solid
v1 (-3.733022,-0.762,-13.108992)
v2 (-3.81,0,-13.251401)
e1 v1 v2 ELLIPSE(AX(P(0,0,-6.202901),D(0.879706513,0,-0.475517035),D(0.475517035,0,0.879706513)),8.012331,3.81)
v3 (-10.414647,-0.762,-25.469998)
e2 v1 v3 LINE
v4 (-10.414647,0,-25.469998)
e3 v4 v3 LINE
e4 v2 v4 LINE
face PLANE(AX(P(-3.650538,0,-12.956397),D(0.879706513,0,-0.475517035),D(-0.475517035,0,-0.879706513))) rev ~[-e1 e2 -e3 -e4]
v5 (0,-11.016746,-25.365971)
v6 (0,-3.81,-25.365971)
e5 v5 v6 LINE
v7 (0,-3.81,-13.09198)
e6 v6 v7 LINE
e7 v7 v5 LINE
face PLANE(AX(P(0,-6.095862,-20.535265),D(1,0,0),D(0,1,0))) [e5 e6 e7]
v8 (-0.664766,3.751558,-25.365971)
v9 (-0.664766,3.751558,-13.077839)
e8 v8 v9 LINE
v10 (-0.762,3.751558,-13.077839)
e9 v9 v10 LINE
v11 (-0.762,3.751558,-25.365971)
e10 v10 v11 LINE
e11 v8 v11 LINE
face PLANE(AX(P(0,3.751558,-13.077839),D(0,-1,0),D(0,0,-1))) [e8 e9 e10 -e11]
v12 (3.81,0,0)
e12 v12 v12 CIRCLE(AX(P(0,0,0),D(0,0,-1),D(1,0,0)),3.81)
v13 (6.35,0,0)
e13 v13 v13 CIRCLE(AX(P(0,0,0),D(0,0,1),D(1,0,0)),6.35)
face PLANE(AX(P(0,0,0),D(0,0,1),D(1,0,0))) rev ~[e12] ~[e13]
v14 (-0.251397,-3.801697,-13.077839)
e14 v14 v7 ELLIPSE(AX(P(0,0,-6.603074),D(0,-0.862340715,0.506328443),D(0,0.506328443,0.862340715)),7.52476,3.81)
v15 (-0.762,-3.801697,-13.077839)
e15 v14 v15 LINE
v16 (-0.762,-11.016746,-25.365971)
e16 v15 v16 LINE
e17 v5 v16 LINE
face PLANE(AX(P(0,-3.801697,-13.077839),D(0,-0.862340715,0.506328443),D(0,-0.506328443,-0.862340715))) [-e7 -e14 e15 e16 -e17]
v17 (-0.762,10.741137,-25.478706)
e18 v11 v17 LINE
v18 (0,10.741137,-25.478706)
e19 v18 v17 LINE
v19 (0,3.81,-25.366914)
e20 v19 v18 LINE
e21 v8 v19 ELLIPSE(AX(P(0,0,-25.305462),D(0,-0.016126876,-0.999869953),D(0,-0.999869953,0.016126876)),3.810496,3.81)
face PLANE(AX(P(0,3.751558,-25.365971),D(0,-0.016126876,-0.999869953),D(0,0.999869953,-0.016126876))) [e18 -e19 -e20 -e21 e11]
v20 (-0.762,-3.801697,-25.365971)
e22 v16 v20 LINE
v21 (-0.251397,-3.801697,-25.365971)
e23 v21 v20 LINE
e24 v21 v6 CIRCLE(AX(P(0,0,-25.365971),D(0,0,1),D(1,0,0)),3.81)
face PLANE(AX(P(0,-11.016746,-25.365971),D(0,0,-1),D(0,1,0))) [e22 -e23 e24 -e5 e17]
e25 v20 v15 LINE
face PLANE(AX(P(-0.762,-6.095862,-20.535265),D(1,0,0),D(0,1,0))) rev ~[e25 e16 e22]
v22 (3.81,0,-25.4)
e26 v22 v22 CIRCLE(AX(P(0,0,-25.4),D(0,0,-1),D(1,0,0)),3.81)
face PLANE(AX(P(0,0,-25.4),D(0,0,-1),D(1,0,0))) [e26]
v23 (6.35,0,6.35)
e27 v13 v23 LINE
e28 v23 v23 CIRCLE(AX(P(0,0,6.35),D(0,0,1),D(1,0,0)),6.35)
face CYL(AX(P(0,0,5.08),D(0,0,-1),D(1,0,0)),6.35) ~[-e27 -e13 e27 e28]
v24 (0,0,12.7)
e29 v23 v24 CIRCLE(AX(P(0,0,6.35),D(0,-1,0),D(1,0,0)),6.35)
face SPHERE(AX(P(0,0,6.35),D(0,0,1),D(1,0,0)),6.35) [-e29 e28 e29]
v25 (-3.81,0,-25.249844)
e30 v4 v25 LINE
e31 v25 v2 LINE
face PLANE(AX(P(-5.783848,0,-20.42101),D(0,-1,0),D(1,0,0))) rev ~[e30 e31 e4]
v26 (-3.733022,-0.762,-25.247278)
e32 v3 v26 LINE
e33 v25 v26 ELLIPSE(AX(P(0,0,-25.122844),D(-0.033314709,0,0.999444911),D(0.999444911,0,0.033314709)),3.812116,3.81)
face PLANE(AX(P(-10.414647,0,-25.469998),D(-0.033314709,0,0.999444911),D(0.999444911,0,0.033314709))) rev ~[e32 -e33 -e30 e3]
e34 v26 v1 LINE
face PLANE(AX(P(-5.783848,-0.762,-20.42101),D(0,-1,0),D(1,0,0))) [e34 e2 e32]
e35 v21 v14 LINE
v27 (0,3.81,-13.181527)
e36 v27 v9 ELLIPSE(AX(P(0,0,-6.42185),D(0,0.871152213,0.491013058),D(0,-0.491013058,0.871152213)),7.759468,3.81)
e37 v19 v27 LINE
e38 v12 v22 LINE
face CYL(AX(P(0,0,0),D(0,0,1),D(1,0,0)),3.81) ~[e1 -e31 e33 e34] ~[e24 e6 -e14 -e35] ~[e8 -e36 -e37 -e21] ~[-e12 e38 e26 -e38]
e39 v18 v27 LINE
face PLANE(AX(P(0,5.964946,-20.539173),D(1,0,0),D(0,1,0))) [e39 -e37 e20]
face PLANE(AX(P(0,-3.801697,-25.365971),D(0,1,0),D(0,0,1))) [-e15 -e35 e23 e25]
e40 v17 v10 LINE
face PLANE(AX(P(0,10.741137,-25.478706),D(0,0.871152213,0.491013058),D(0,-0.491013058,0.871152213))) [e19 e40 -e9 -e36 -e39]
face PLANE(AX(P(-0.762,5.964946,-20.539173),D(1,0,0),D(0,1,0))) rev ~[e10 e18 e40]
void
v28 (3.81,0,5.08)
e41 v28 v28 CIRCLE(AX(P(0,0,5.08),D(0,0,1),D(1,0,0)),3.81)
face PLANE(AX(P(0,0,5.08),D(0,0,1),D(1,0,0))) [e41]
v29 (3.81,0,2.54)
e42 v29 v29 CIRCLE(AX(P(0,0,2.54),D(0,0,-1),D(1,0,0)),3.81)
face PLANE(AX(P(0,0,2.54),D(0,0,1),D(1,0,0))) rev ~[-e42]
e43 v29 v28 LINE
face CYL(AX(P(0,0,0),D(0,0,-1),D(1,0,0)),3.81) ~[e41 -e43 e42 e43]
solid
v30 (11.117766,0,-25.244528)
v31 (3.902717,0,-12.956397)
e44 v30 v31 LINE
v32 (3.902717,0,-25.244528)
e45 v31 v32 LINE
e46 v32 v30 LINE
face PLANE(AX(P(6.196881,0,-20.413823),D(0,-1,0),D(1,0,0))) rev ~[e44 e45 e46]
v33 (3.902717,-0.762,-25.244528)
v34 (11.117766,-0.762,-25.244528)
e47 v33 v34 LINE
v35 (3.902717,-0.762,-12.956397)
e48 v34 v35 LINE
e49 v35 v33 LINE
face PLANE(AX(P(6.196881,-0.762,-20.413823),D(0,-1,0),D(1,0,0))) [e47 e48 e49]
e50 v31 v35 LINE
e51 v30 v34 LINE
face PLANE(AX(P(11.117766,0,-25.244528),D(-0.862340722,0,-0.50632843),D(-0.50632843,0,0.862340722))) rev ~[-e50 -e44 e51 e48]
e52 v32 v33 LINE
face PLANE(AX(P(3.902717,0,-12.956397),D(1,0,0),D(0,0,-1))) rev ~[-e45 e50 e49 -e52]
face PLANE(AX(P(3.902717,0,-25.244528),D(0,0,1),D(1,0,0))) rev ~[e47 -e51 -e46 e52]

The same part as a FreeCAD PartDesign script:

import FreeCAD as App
import Part
import Sketcher
Q = App.Units.Quantity


def edges_at(feature, points):
    """Names of the edges that pass closest to the given points."""
    edges = feature.Shape.Edges
    near = lambda p: min(range(len(edges)), key=lambda i: edges[i].distToShape(Part.Vertex(*p))[0])
    return sorted({f"Edge{near(p) + 1}" for p in points})


def faces_at(feature, points):
    """Names of the faces that lie closest to the given points."""
    faces = feature.Shape.Faces
    near = lambda p: min(range(len(faces)), key=lambda i: faces[i].distToShape(Part.Vertex(*p))[0])
    return sorted({f"Face{near(p) + 1}" for p in points})

doc = App.newDocument("Part")
body = doc.addObject("PartDesign::Body", "Body")

# Sketch on XY plane
sketch1 = body.newObject("Sketcher::SketchObject", "Sketch")
sketch1.AttachmentSupport = (doc.getObject("XY_Plane"), [""])
sketch1.MapMode = "FlatFace"
sketch1.addGeometry(Part.Circle(App.Vector(0, 0, 0), App.Vector(0, 0, 1), 6), False)
sketch1.addConstraint([
    Sketcher.Constraint("Coincident", 0, 3, -1, 1),
    Sketcher.Constraint("Diameter", 0, Q("0.5 in")),
])
pad1 = body.newObject("PartDesign::Pad", "Pad")
pad1.Profile = sketch1
pad1.Length = Q("0.2 in")
doc.recompute()

thickness = body.newObject("PartDesign::Thickness", "Thickness")
thickness.Base = (pad1, faces_at(pad1, [(0, 0, 5.08)]))
thickness.Value = Q("0.1 in")
thickness.Reversed = True
thickness.Join = "Arc"

# Sketch on XY plane
sketch2 = body.newObject("Sketcher::SketchObject", "Sketch001")
sketch2.AttachmentSupport = (doc.getObject("XY_Plane"), [""])
sketch2.MapMode = "FlatFace"
sketch2.AttachmentOffset = App.Placement(App.Vector(0, 0, 0.2 * 25.4), App.Rotation())
sketch2.addGeometry(Part.Circle(App.Vector(0, 0, 0), App.Vector(0, 0, 1), 6), False)
sketch2.addConstraint([
    Sketcher.Constraint("Coincident", 0, 3, -1, 1),
    Sketcher.Constraint("Diameter", 0, Q("0.5 in")),
])
pad2 = body.newObject("PartDesign::Pad", "Pad001")
pad2.Profile = sketch2
pad2.Length = Q("0.3 in")
doc.recompute()

fillet = body.newObject("PartDesign::Fillet", "Fillet")
fillet.Base = (pad2, edges_at(pad2, [(-6.35, 0, 12.7)]))
fillet.Radius = Q("0.25 in")

# Sketch on XY plane
sketch3 = body.newObject("Sketcher::SketchObject", "Sketch002")
sketch3.AttachmentSupport = (doc.getObject("XY_Plane"), [""])
sketch3.MapMode = "FlatFace"
sketch3.addGeometry(Part.Circle(App.Vector(0, 0, 0), App.Vector(0, 0, 1), 3.8), False)
sketch3.addConstraint([
    Sketcher.Constraint("Coincident", 0, 3, -1, 1),
    Sketcher.Constraint("Diameter", 0, Q("0.3 in")),
])
pad3 = body.newObject("PartDesign::Pad", "Pad002")
pad3.Profile = sketch3
pad3.Length = Q("1 in")
pad3.Reversed = True

# Sketch on YZ plane
sketch4 = body.newObject("Sketcher::SketchObject", "Sketch003")
sketch4.AttachmentSupport = (doc.getObject("YZ_Plane"), [""])
sketch4.MapMode = "FlatFace"
sketch4.addGeometry([
    Part.LineSegment(App.Vector(3.751558, -13.077839, 0), App.Vector(3.751558, -25.365971, 0)),  # 0
    Part.LineSegment(App.Vector(3.751558, -25.365971, 0), App.Vector(10.741137, -25.478706, 0)),  # 1
    Part.LineSegment(App.Vector(10.741137, -25.478706, 0), App.Vector(3.751558, -13.077839, 0)),  # 2
    Part.LineSegment(App.Vector(-11.016746, -25.365971, 0), App.Vector(-3.801697, -25.365971, 0)),  # 3
    Part.LineSegment(App.Vector(-3.801697, -25.365971, 0), App.Vector(-3.801697, -13.077839, 0)),  # 4
    Part.LineSegment(App.Vector(-3.801697, -13.077839, 0), App.Vector(-11.016746, -25.365971, 0)),  # 5
], False)
sketch4.addConstraint([
    Sketcher.Constraint("Coincident", 0, 2, 1, 1),
    Sketcher.Constraint("Coincident", 1, 2, 2, 1),
    Sketcher.Constraint("Coincident", 2, 2, 0, 1),
    Sketcher.Constraint("Coincident", 3, 2, 4, 1),
    Sketcher.Constraint("Coincident", 4, 2, 5, 1),
    Sketcher.Constraint("Coincident", 5, 2, 3, 1),
    Sketcher.Constraint("Vertical", 0),
    Sketcher.Constraint("Horizontal", 3),
    Sketcher.Constraint("Vertical", 4),
    Sketcher.Constraint("Horizontal", 0, 2, 3, 2),
    Sketcher.Constraint("Horizontal", 2, 2, 4, 2),
    Sketcher.Constraint("DistanceX", 3, 1, 3, 2, 7.215049),
    Sketcher.Constraint("DistanceY", 0, 2, 0, 1, 12.288132),
    Sketcher.Constraint("Distance", 1, 6.990488),
    Sketcher.Constraint("DistanceY", 0, 2, -1, 1, 25.365971),
    Sketcher.Constraint("DistanceX", 0, 2, 1, 2, 6.989579),
    Sketcher.Constraint("DistanceX", -1, 1, 0, 2, 3.751558),
    Sketcher.Constraint("DistanceX", 3, 2, -1, 1, 3.801697),
])
pad4 = body.newObject("PartDesign::Pad", "Pad003")
pad4.Profile = sketch4
pad4.Length = Q("0.03 in")
pad4.Reversed = True

# Sketch on XZ plane
sketch5 = body.newObject("Sketcher::SketchObject", "Sketch004")
sketch5.AttachmentSupport = (doc.getObject("XZ_Plane"), [""])
sketch5.MapMode = "FlatFace"
sketch5.addGeometry([
    Part.LineSegment(App.Vector(-10, -25, 0), App.Vector(-4, -25, 0)),
    Part.LineSegment(App.Vector(-4, -25, 0), App.Vector(-4, -13, 0)),
    Part.LineSegment(App.Vector(-4, -13, 0), App.Vector(-10, -25, 0)),
], False)
sketch5.addConstraint([
    Sketcher.Constraint("Coincident", 0, 2, 1, 1),
    Sketcher.Constraint("Coincident", 1, 2, 2, 1),
    Sketcher.Constraint("Coincident", 2, 2, 0, 1),
    Sketcher.Constraint("Vertical", 1),
    Sketcher.Constraint("DistanceY", 1, 1, 1, 2, 12.288132),
    Sketcher.Constraint("DistanceY", 2, 2, 1, 2, 12.513601),
    Sketcher.Constraint("DistanceX", 0, 2, -1, 1, 3.650538),
    Sketcher.Constraint("DistanceY", 0, 2, -1, 1, 25.244528),
    Sketcher.Constraint("DistanceX", 2, 2, 0, 2, 6.764109),
])
pad5 = body.newObject("PartDesign::Pad", "Pad004")
pad5.Profile = sketch5
pad5.Length = Q("0.03 in")
body2 = doc.addObject("PartDesign::Body", "Body001")

# Sketch on XZ plane
sketch6 = body2.newObject("Sketcher::SketchObject", "Sketch005")
sketch6.AttachmentSupport = (doc.getObject("XZ_Plane001"), [""])
sketch6.MapMode = "FlatFace"
sketch6.addGeometry([
    Part.LineSegment(App.Vector(4, -13, 0), App.Vector(4, -25, 0)),
    Part.LineSegment(App.Vector(4, -25, 0), App.Vector(11, -25, 0)),
    Part.LineSegment(App.Vector(11, -25, 0), App.Vector(4, -13, 0)),
], False)
sketch6.addConstraint([
    Sketcher.Constraint("Coincident", 0, 2, 1, 1),
    Sketcher.Constraint("Coincident", 1, 2, 2, 1),
    Sketcher.Constraint("Coincident", 2, 2, 0, 1),
    Sketcher.Constraint("Vertical", 0),
    Sketcher.Constraint("Horizontal", 1),
    Sketcher.Constraint("DistanceX", 1, 1, 1, 2, 7.215049),
    Sketcher.Constraint("DistanceY", 0, 2, 0, 1, 12.288132),
    Sketcher.Constraint("DistanceY", 0, 2, -1, 1, 25.244528),
    Sketcher.Constraint("DistanceX", -1, 1, 0, 2, 3.902717),
])
pad6 = body2.newObject("PartDesign::Pad", "Pad005")
pad6.Profile = sketch6
pad6.Length = Q("0.03 in")

doc.recompute()
